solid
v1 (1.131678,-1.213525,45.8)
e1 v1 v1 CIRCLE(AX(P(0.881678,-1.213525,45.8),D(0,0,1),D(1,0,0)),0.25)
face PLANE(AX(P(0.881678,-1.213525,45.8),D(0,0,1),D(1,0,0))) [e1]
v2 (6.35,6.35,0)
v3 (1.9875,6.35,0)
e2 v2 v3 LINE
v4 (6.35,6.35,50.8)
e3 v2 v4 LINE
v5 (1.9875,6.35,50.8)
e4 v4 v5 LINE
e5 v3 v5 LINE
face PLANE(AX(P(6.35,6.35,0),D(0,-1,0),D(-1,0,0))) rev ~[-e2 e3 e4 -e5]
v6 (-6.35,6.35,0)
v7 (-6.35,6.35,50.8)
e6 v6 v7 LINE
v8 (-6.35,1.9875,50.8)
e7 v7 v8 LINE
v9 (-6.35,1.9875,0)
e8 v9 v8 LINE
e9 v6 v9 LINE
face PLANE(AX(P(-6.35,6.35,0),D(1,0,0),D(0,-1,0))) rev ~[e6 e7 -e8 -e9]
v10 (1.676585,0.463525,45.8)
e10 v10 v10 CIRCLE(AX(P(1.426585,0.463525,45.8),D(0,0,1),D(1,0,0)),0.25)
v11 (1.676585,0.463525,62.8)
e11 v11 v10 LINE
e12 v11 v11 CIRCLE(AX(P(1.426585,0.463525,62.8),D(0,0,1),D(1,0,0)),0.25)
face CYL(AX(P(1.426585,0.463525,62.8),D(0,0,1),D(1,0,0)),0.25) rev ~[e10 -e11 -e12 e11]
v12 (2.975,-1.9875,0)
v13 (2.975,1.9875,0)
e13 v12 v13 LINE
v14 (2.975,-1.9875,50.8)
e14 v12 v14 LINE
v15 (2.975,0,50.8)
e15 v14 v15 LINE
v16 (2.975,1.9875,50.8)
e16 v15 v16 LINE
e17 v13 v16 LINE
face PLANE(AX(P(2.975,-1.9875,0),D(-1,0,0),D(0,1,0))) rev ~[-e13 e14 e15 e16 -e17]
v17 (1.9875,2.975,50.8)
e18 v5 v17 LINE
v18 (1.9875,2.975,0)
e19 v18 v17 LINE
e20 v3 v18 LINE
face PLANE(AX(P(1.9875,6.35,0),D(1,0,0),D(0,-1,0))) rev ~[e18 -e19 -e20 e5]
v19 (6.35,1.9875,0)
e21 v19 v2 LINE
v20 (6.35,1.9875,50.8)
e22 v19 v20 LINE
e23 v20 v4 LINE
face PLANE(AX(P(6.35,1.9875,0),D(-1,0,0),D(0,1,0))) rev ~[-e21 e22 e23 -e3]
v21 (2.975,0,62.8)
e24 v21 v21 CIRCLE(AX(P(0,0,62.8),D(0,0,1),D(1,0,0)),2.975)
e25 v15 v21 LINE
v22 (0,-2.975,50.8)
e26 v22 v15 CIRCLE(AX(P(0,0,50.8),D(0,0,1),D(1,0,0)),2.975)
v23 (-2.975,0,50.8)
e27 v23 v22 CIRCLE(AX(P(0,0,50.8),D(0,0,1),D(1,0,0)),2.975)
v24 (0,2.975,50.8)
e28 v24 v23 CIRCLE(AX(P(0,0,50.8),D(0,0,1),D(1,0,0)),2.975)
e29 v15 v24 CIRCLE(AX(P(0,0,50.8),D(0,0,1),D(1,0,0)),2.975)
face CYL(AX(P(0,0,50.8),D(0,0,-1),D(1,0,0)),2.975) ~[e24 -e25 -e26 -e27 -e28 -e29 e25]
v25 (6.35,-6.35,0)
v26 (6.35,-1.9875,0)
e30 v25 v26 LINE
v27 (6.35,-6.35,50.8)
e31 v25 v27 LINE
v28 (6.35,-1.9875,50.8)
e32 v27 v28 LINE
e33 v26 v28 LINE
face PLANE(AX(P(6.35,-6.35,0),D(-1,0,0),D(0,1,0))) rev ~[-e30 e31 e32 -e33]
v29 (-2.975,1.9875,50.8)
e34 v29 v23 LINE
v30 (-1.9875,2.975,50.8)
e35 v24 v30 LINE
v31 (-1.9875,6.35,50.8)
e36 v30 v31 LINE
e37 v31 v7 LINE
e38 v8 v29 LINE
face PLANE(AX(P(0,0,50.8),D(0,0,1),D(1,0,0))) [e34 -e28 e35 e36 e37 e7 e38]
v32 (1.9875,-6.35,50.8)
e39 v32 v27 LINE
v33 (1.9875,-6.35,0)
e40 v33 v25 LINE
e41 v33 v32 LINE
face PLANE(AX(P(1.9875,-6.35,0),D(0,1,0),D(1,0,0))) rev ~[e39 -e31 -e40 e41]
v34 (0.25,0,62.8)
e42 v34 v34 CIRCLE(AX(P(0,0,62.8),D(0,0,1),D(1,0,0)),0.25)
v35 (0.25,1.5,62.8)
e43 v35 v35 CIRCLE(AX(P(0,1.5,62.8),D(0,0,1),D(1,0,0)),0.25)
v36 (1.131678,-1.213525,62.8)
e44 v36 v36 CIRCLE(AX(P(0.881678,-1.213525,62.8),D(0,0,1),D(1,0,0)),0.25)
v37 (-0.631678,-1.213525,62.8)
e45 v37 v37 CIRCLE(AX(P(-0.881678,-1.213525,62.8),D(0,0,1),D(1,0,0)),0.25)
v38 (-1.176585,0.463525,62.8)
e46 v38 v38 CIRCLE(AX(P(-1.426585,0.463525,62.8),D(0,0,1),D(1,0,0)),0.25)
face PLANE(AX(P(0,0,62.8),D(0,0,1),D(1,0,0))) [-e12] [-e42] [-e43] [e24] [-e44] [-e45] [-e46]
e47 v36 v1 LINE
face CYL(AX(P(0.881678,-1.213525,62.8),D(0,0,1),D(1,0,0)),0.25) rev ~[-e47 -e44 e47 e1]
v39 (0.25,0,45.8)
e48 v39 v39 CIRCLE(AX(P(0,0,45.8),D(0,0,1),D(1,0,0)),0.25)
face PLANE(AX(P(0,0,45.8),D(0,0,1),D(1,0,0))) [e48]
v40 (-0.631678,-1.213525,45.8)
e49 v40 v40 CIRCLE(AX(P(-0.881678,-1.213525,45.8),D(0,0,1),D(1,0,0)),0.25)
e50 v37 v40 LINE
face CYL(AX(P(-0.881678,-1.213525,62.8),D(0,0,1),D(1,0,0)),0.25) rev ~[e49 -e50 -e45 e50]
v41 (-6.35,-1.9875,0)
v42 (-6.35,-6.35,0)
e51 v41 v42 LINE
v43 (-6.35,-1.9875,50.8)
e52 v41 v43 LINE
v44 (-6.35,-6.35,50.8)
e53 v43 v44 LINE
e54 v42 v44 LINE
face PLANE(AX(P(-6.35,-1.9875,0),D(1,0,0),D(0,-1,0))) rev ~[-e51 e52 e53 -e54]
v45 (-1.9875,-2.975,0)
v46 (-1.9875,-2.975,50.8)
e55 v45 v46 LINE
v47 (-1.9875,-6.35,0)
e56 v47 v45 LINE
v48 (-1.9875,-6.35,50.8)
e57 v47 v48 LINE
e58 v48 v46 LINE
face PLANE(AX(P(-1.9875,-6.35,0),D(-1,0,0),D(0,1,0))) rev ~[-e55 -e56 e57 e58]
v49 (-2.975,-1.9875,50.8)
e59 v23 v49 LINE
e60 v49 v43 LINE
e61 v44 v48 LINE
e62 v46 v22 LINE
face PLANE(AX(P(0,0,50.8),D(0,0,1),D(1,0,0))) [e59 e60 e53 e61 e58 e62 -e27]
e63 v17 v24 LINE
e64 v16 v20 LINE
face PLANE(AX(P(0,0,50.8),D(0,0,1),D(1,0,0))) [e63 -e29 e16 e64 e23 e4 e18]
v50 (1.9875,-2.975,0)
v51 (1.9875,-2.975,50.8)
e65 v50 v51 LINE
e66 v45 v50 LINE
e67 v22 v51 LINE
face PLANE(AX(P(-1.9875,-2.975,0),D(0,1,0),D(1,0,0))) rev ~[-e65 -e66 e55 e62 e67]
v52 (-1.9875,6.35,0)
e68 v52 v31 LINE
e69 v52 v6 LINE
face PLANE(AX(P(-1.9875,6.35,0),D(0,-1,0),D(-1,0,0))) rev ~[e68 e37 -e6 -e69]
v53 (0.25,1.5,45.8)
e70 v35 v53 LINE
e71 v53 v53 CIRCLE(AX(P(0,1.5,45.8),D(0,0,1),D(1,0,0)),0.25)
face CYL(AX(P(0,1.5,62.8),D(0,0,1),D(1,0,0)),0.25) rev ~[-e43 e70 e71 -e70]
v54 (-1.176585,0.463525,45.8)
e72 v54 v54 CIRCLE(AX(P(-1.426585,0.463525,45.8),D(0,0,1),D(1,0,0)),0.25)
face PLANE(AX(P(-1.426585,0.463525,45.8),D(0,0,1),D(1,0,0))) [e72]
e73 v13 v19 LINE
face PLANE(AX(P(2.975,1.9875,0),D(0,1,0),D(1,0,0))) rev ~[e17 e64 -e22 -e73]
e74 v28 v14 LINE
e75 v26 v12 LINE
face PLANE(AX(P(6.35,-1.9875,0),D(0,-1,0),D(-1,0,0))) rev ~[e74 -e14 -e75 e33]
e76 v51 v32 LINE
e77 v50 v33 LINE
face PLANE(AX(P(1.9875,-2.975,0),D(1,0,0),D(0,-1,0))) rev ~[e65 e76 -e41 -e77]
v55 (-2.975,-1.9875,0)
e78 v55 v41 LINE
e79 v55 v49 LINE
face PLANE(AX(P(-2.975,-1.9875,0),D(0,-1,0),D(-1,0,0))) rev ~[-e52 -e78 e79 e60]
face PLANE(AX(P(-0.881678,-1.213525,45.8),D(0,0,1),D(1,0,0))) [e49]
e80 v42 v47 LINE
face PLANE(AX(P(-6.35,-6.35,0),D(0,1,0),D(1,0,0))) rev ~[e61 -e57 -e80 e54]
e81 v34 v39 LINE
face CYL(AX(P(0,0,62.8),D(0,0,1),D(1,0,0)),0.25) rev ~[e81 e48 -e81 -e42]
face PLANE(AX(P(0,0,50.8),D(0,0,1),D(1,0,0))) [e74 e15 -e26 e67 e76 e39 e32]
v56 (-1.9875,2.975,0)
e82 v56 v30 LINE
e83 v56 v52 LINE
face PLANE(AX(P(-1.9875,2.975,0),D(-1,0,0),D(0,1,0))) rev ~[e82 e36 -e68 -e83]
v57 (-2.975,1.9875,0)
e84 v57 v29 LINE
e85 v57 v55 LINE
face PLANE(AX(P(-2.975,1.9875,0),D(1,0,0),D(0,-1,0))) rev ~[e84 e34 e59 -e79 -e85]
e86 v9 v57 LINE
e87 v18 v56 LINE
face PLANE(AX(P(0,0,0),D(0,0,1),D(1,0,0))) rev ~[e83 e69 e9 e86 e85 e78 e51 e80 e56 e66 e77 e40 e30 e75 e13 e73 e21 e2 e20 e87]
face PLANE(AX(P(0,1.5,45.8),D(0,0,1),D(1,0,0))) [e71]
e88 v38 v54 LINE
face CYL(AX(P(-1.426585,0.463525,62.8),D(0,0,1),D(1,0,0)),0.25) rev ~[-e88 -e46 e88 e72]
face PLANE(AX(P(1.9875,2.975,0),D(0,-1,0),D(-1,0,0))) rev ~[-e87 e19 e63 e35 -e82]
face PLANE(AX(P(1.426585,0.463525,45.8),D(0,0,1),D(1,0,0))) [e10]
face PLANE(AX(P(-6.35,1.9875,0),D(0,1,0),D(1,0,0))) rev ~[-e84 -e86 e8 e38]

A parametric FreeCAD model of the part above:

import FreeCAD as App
import Part
import Sketcher
from FreeCAD import Vector
Q = App.Units.Quantity

doc = App.newDocument("Part")
params = doc.addObject("Spreadsheet::Sheet", "Params")
for row, (alias, value) in enumerate([
    ("pad1_length", "50.8 mm"),
    ("sketch2_diameter", "5.95 mm"),
    ("pad2_length", "12 mm"),
    ("sketch3_diameter", "0.5 mm"),
    ("pocket1_length", "17 mm"),
], start=1):
    params.set(f"A{row}", alias)
    params.set(f"B{row}", "=" + value)
    params.setAlias(f"B{row}", alias)

body = doc.addObject("PartDesign::Body", "Body")

sketch1 = body.newObject("Sketcher::SketchObject", "Sketch")
sketch1.AttachmentSupport = (doc.getObject("XY_Plane"), [""])
sketch1.MapMode = "FlatFace"
sketch1.addGeometry([
    Part.LineSegment(Vector(-1.9875, 6.35, 0), Vector(-6.35, 6.35, 0)),
    Part.LineSegment(Vector(-6.35, 6.35, 0), Vector(-6.35, 1.9875, 0)),
    Part.LineSegment(Vector(-6.35, 1.9875, 0), Vector(-2.975, 1.9875, 0)),
    Part.LineSegment(Vector(-2.975, 1.9875, 0), Vector(-2.975, -1.9875, 0)),
    Part.LineSegment(Vector(-2.975, -1.9875, 0), Vector(-6.35, -1.9875, 0)),
    Part.LineSegment(Vector(-6.35, -1.9875, 0), Vector(-6.35, -6.35, 0)),
    Part.LineSegment(Vector(-6.35, -6.35, 0), Vector(-1.9875, -6.35, 0)),
    Part.LineSegment(Vector(-1.9875, -6.35, 0), Vector(-1.9875, -2.975, 0)),
    Part.LineSegment(Vector(-1.9875, -2.975, 0), Vector(1.9875, -2.975, 0)),
    Part.LineSegment(Vector(1.9875, -2.975, 0), Vector(1.9875, -6.35, 0)),
    Part.LineSegment(Vector(1.9875, -6.35, 0), Vector(6.35, -6.35, 0)),
    Part.LineSegment(Vector(6.35, -6.35, 0), Vector(6.35, -1.9875, 0)),
    Part.LineSegment(Vector(6.35, -1.9875, 0), Vector(2.975, -1.9875, 0)),
    Part.LineSegment(Vector(2.975, -1.9875, 0), Vector(2.975, 1.9875, 0)),
    Part.LineSegment(Vector(2.975, 1.9875, 0), Vector(6.35, 1.9875, 0)),
    Part.LineSegment(Vector(6.35, 1.9875, 0), Vector(6.35, 6.35, 0)),
    Part.LineSegment(Vector(6.35, 6.35, 0), Vector(1.9875, 6.35, 0)),
    Part.LineSegment(Vector(1.9875, 6.35, 0), Vector(1.9875, 2.975, 0)),
    Part.LineSegment(Vector(1.9875, 2.975, 0), Vector(-1.9875, 2.975, 0)),
    Part.LineSegment(Vector(-1.9875, 2.975, 0), Vector(-1.9875, 6.35, 0)),
], False)
sketch1.addConstraint([
    Sketcher.Constraint("Coincident", 0, 2, 1, 1),
    Sketcher.Constraint("Coincident", 1, 2, 2, 1),
    Sketcher.Constraint("Coincident", 2, 2, 3, 1),
    Sketcher.Constraint("Coincident", 3, 2, 4, 1),
    Sketcher.Constraint("Coincident", 4, 2, 5, 1),
    Sketcher.Constraint("Coincident", 5, 2, 6, 1),
    Sketcher.Constraint("Coincident", 6, 2, 7, 1),
    Sketcher.Constraint("Coincident", 7, 2, 8, 1),
    Sketcher.Constraint("Coincident", 8, 2, 9, 1),
    Sketcher.Constraint("Coincident", 9, 2, 10, 1),
    Sketcher.Constraint("Coincident", 10, 2, 11, 1),
    Sketcher.Constraint("Coincident", 11, 2, 12, 1),
    Sketcher.Constraint("Coincident", 12, 2, 13, 1),
    Sketcher.Constraint("Coincident", 13, 2, 14, 1),
    Sketcher.Constraint("Coincident", 14, 2, 15, 1),
    Sketcher.Constraint("Coincident", 15, 2, 16, 1),
    Sketcher.Constraint("Coincident", 16, 2, 17, 1),
    Sketcher.Constraint("Coincident", 17, 2, 18, 1),
    Sketcher.Constraint("Coincident", 18, 2, 19, 1),
    Sketcher.Constraint("Coincident", 19, 2, 0, 1),
    Sketcher.Constraint("Horizontal", 0),
    Sketcher.Constraint("Vertical", 1),
    Sketcher.Constraint("Horizontal", 2),
    Sketcher.Constraint("Vertical", 3),
    Sketcher.Constraint("Horizontal", 4),
    Sketcher.Constraint("Vertical", 5),
    Sketcher.Constraint("Horizontal", 6),
    Sketcher.Constraint("Vertical", 7),
    Sketcher.Constraint("Horizontal", 8),
    Sketcher.Constraint("Vertical", 9),
    Sketcher.Constraint("Horizontal", 10),
    Sketcher.Constraint("Vertical", 11),
    Sketcher.Constraint("Horizontal", 12),
    Sketcher.Constraint("Vertical", 13),
    Sketcher.Constraint("Horizontal", 14),
    Sketcher.Constraint("Vertical", 15),
    Sketcher.Constraint("Horizontal", 16),
    Sketcher.Constraint("Vertical", 17),
    Sketcher.Constraint("Horizontal", 18),
    Sketcher.Constraint("Vertical", 19),
    Sketcher.Constraint("Symmetric", 0, 2, 10, 2, -1, 1),
    Sketcher.Constraint("Symmetric", 2, 2, 12, 2, -1, 1),
    Sketcher.Constraint("Symmetric", 4, 2, 14, 2, -1, 1),
    Sketcher.Constraint("Symmetric", 6, 2, 16, 2, -1, 1),
    Sketcher.Constraint("Symmetric", 8, 2, 18, 2, -1, 1),
    Sketcher.Constraint("Symmetric", 6, 2, 9, 2, -2),
    Sketcher.Constraint("Symmetric", 4, 2, 11, 2, -2),
    Sketcher.Constraint("Equal", 16, 1),
    Sketcher.Constraint("Equal", 18, 3),
    Sketcher.Constraint("Equal", 14, 7),
    Sketcher.Constraint("DistanceY", 5, 2, 0, 2, Q("12.7 mm")),
    Sketcher.Constraint("DistanceX", 2, 1, 2, 2, Q("3.375 mm")),
    Sketcher.Constraint("DistanceX", 8, 1, 8, 2, Q("3.975 mm")),
])
pad1 = body.newObject("PartDesign::Pad", "Pad")
pad1.Profile = sketch1
pad1.setExpression("Length", "Params.pad1_length")

sketch2 = body.newObject("Sketcher::SketchObject", "Sketch001")
sketch2.AttachmentSupport = (doc.getObject("XY_Plane"), [""])
sketch2.MapMode = "FlatFace"
sketch2.AttachmentOffset = App.Placement(Vector(0, 0, 50.8), App.Rotation())
sketch2.addGeometry(Part.Circle(Vector(0, 0, 0), Vector(0, 0, 1), 2.975), False)
sketch2.addConstraint([
    Sketcher.Constraint("Coincident", 0, 3, -1, 1),
    Sketcher.Constraint("Diameter", 0, Q("5.95 mm")),
])
sketch2.setExpression("Constraints[1]", "Params.sketch2_diameter")
pad2 = body.newObject("PartDesign::Pad", "Pad001")
pad2.Profile = sketch2
pad2.setExpression("Length", "Params.pad2_length")

sketch3 = body.newObject("Sketcher::SketchObject", "Sketch002")
sketch3.AttachmentSupport = (doc.getObject("XY_Plane"), [""])
sketch3.MapMode = "FlatFace"
sketch3.AttachmentOffset = App.Placement(Vector(0, 0, 62.8), App.Rotation())
sketch3.addGeometry([
    Part.Circle(Vector(0, 1.5, 0), Vector(0, 0, 1), 0.25),
    Part.Circle(Vector(-1.426585, 0.463525, 0), Vector(0, 0, 1), 0.25),
    Part.Circle(Vector(-0.881678, -1.213525, 0), Vector(0, 0, 1), 0.25),
    Part.Circle(Vector(0.881678, -1.213525, 0), Vector(0, 0, 1), 0.25),
    Part.Circle(Vector(0, 0, 0), Vector(0, 0, 1), 0.25),
    Part.Circle(Vector(1.426585, 0.463525, 0), Vector(0, 0, 1), 0.25),
], False)
sketch3.addConstraint([
    Sketcher.Constraint("Coincident", 4, 3, -1, 1),
    Sketcher.Constraint("Equal", 0, 1),
    Sketcher.Constraint("Equal", 1, 2),
    Sketcher.Constraint("Equal", 2, 3),
    Sketcher.Constraint("Equal", 3, 4),
    Sketcher.Constraint("Equal", 4, 5),
    Sketcher.Constraint("Symmetric", 2, 3, 3, 3, -2),
    Sketcher.Constraint("Symmetric", 1, 3, 5, 3, -2),
    Sketcher.Constraint("PointOnObject", 0, 3, -2),
    Sketcher.Constraint("Diameter", 0, Q("0.5 mm")),
    Sketcher.Constraint("DistanceY", -1, 1, 0, 3, Q("1.5 mm")),
    Sketcher.Constraint("DistanceY", 2, 3, 1, 3, Q("1.67705 mm")),
    Sketcher.Constraint("DistanceX", 1, 3, 5, 3, Q("2.85317 mm")),
    Sketcher.Constraint("DistanceY", -1, 1, 1, 3, Q("0.463525 mm")),
    Sketcher.Constraint("DistanceX", 2, 3, -1, 1, Q("0.881678 mm")),
])
sketch3.setExpression("Constraints[9]", "Params.sketch3_diameter")
pocket1 = body.newObject("PartDesign::Pocket", "Pocket")
pocket1.Profile = sketch3
pocket1.setExpression("Length", "Params.pocket1_length")

doc.recompute()
